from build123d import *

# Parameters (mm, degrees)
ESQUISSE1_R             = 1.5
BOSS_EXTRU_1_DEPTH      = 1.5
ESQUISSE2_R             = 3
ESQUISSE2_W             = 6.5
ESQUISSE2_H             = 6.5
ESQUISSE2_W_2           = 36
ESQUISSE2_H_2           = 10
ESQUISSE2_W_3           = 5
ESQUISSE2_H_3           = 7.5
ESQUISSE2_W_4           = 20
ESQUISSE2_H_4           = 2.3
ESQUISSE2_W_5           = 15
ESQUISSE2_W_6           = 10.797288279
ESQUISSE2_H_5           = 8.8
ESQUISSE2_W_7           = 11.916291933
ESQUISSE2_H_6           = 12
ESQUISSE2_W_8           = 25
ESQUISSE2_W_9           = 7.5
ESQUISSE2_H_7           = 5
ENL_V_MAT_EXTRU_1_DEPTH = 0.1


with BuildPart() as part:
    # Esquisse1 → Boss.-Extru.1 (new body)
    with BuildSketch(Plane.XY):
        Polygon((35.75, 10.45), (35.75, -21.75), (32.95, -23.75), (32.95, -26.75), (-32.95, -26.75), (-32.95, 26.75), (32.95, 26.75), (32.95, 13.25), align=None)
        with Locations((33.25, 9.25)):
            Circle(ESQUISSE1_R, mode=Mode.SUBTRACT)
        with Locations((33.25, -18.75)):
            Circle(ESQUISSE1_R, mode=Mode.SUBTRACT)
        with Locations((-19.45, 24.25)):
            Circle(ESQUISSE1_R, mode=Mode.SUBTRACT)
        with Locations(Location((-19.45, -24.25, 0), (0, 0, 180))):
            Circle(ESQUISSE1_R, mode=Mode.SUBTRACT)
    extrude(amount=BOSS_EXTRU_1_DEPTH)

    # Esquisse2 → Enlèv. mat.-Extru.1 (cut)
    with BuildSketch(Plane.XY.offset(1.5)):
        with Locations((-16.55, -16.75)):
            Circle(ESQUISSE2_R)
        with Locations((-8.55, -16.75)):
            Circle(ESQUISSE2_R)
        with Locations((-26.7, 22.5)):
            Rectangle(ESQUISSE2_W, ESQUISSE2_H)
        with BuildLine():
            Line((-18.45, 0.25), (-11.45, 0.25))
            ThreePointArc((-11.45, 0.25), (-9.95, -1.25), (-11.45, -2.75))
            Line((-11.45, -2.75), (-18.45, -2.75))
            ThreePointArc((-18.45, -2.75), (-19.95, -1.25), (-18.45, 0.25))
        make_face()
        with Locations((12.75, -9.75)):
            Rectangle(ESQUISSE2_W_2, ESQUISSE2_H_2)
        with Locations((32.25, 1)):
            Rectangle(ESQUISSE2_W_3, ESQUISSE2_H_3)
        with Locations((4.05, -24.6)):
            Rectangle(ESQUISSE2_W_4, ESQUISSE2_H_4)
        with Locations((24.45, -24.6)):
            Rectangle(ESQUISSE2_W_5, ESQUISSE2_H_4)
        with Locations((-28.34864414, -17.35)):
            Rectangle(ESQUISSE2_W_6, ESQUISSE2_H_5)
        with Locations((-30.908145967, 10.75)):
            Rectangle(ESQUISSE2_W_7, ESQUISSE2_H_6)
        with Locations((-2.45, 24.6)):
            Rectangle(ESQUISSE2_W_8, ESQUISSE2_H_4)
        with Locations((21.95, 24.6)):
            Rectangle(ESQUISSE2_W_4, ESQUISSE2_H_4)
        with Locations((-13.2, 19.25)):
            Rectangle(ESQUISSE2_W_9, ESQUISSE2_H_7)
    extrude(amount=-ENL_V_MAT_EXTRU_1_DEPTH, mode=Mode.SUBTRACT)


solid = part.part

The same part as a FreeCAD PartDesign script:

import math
import FreeCAD as App
import Part
import Sketcher
from FreeCAD import Vector
Q = App.Units.Quantity


def add_polygon(sketch, points):
    """Adds a closed chain of lines whose ends are joined by coincident constraints."""
    first, n = sketch.GeometryCount, len(points)
    for a, b in zip(points, points[1:] + points[:1]):
        sketch.addGeometry(Part.LineSegment(App.Vector(*a, 0), App.Vector(*b, 0)), False)
    for i in range(n):
        sketch.addConstraint(Sketcher.Constraint("Coincident", first + i, 2, first + (i + 1) % n, 1))

doc = App.newDocument("Part")
body = doc.addObject("PartDesign::Body", "Body")

# Sketch on XY plane
sketch1 = body.newObject("Sketcher::SketchObject", "Sketch")
sketch1.AttachmentSupport = (doc.getObject("XY_Plane"), [""])
sketch1.MapMode = "FlatFace"
add_polygon(sketch1, [(35.75, -21.75), (35.75, 10.45), (32.95, 13.25), (32.95, 26.75), (-32.95, 26.75), (-32.95, -26.75), (32.95, -26.75), (32.95, -23.75)])  # lines 0-7
sketch1.addGeometry(Part.Circle(Vector(33.25, -18.75, 0), Vector(0, 0, 1), 1.5), False)  # 8
sketch1.addGeometry(Part.Circle(Vector(-19.45, -24.25, 0), Vector(0, 0, 1), 1.5), False)  # 9
sketch1.addGeometry(Part.Circle(Vector(33.25, 9.25, 0), Vector(0, 0, 1), 1.5), False)  # 10
sketch1.addGeometry(Part.Circle(Vector(-19.45, 24.25, 0), Vector(0, 0, 1), 1.5), False)  # 11
sketch1.addConstraint(Sketcher.Constraint("Vertical", 0))
sketch1.addConstraint(Sketcher.Constraint("Vertical", 2))
sketch1.addConstraint(Sketcher.Constraint("Horizontal", 3))
sketch1.addConstraint(Sketcher.Constraint("Vertical", 4))
sketch1.addConstraint(Sketcher.Constraint("Horizontal", 5))
sketch1.addConstraint(Sketcher.Constraint("Vertical", 6))
sketch1.addConstraint(Sketcher.Constraint("Equal", 8, 9))
sketch1.addConstraint(Sketcher.Constraint("Equal", 9, 10))
sketch1.addConstraint(Sketcher.Constraint("Equal", 10, 11))
sketch1.addConstraint(Sketcher.Constraint("Symmetric", 2, 2, 4, 2, -1, 1))
sketch1.addConstraint(Sketcher.Constraint("Symmetric", 9, 3, 11, 3, -1))
sketch1.addConstraint(Sketcher.Constraint("Vertical", 8, 3, 10, 3))
sketch1.addConstraint(Sketcher.Constraint("Vertical", 2, 2, 5, 2))
sketch1.addConstraint(Sketcher.Constraint("Diameter", 8, Q("3 mm")))
sketch1.addConstraint(Sketcher.Constraint("DistanceY", 6, 1, 6, 2, Q("3 mm")))
sketch1.addConstraint(Sketcher.Constraint("Angle", 1, Q("135 deg")))
sketch1.addConstraint(Sketcher.Constraint("DistanceX", 3, 2, 3, 1, Q("65.9 mm")))
sketch1.addConstraint(Sketcher.Constraint("DistanceY", 0, 1, 0, 2, Q("32.2 mm")))
sketch1.addConstraint(Sketcher.Constraint("DistanceY", 2, 1, 2, 2, Q("13.5 mm")))
sketch1.addConstraint(Sketcher.Constraint("DistanceY", 4, 2, 4, 1, Q("53.5 mm")))
sketch1.addConstraint(Sketcher.Constraint("DistanceY", 8, 3, 10, 3, Q("28 mm")))
sketch1.addConstraint(Sketcher.Constraint("DistanceY", 10, 3, 11, 3, Q("15 mm")))
sketch1.addConstraint(Sketcher.Constraint("DistanceY", 10, 3, 1, 2, Q("4 mm")))
sketch1.addConstraint(Sketcher.Constraint("DistanceY", 6, 2, 7, 2, Q("2 mm")))
sketch1.addConstraint(Sketcher.Constraint("DistanceX", 9, 3, 8, 3, Q("52.7 mm")))
sketch1.addConstraint(Sketcher.Constraint("DistanceX", 10, 3, 0, 2, Q("2.5 mm")))
pad1 = body.newObject("PartDesign::Pad", "Pad")
pad1.Profile = sketch1
pad1.Length = 1.5

# Sketch on XY plane
sketch2 = body.newObject("Sketcher::SketchObject", "Sketch001")
sketch2.AttachmentSupport = (doc.getObject("XY_Plane"), [""])
sketch2.MapMode = "FlatFace"
sketch2.AttachmentOffset = App.Placement(Vector(0, 0, 1.5), App.Rotation())
sketch2.addGeometry(Part.Circle(Vector(-16.55, -16.75, 0), Vector(0, 0, 1), 3), False)  # 0
sketch2.addGeometry(Part.Circle(Vector(-8.55, -16.75, 0), Vector(0, 0, 1), 3), False)  # 1
add_polygon(sketch2, [(-29.95, 25.75), (-29.95, 19.25), (-23.45, 19.25), (-23.45, 25.75)])  # lines 2-5
sketch2.addGeometry(Part.LineSegment(Vector(-11.45, 0.25, 0), Vector(-18.45, 0.25, 0)), False)  # 6
sketch2.addGeometry(Part.ArcOfCircle(Part.Circle(Vector(-18.45, -1.25, 0), Vector(0, 0, 1), 1.5), math.radians(90), math.radians(270)), False)  # 7
sketch2.addGeometry(Part.LineSegment(Vector(-18.45, -2.75, 0), Vector(-11.45, -2.75, 0)), False)  # 8
sketch2.addGeometry(Part.ArcOfCircle(Part.Circle(Vector(-11.45, -1.25, 0), Vector(0, 0, 1), 1.5), math.radians(-90), math.radians(90)), False)  # 9
add_polygon(sketch2, [(-5.25, -4.75), (-5.25, -14.75), (30.75, -14.75), (30.75, -4.75)])  # lines 10-13
add_polygon(sketch2, [(29.75, 4.75), (29.75, -2.75), (34.75, -2.75), (34.75, 4.75)])  # lines 14-17
add_polygon(sketch2, [(-5.95, -23.45), (-5.95, -25.75), (14.05, -25.75), (14.05, -23.45)])  # lines 18-21
add_polygon(sketch2, [(16.95, -23.45), (16.95, -25.75), (31.95, -25.75), (31.95, -23.45)])  # lines 22-25
add_polygon(sketch2, [(-33.747288, -12.95), (-33.747288, -21.75), (-22.95, -21.75), (-22.95, -12.95)])  # lines 26-29
add_polygon(sketch2, [(-36.866292, 16.75), (-36.866292, 4.75), (-24.95, 4.75), (-24.95, 16.75)])  # lines 30-33
add_polygon(sketch2, [(-14.95, 25.75), (-14.95, 23.45), (10.05, 23.45), (10.05, 25.75)])  # lines 34-37
add_polygon(sketch2, [(11.95, 25.75), (11.95, 23.45), (31.95, 23.45), (31.95, 25.75)])  # lines 38-41
add_polygon(sketch2, [(-16.95, 21.75), (-16.95, 16.75), (-9.45, 16.75), (-9.45, 21.75)])  # lines 42-45
sketch2.addConstraint(Sketcher.Constraint("Tangent", 6, 2, 7, 1))
sketch2.addConstraint(Sketcher.Constraint("Tangent", 7, 2, 8, 1))
sketch2.addConstraint(Sketcher.Constraint("Tangent", 8, 2, 9, 1))
sketch2.addConstraint(Sketcher.Constraint("Tangent", 9, 2, 6, 1))
sketch2.addConstraint(Sketcher.Constraint("Vertical", 2))
sketch2.addConstraint(Sketcher.Constraint("Horizontal", 3))
sketch2.addConstraint(Sketcher.Constraint("Vertical", 4))
sketch2.addConstraint(Sketcher.Constraint("Horizontal", 5))
sketch2.addConstraint(Sketcher.Constraint("Horizontal", 6))
sketch2.addConstraint(Sketcher.Constraint("Horizontal", 8))
sketch2.addConstraint(Sketcher.Constraint("Vertical", 10))
sketch2.addConstraint(Sketcher.Constraint("Horizontal", 11))
sketch2.addConstraint(Sketcher.Constraint("Vertical", 12))
sketch2.addConstraint(Sketcher.Constraint("Horizontal", 13))
sketch2.addConstraint(Sketcher.Constraint("Vertical", 14))
sketch2.addConstraint(Sketcher.Constraint("Horizontal", 15))
sketch2.addConstraint(Sketcher.Constraint("Vertical", 16))
sketch2.addConstraint(Sketcher.Constraint("Horizontal", 17))
sketch2.addConstraint(Sketcher.Constraint("Vertical", 18))
sketch2.addConstraint(Sketcher.Constraint("Horizontal", 19))
sketch2.addConstraint(Sketcher.Constraint("Vertical", 20))
sketch2.addConstraint(Sketcher.Constraint("Horizontal", 21))
sketch2.addConstraint(Sketcher.Constraint("Vertical", 22))
sketch2.addConstraint(Sketcher.Constraint("Horizontal", 23))
sketch2.addConstraint(Sketcher.Constraint("Vertical", 24))
sketch2.addConstraint(Sketcher.Constraint("Horizontal", 25))
sketch2.addConstraint(Sketcher.Constraint("Vertical", 26))
sketch2.addConstraint(Sketcher.Constraint("Horizontal", 27))
sketch2.addConstraint(Sketcher.Constraint("Vertical", 28))
sketch2.addConstraint(Sketcher.Constraint("Horizontal", 29))
sketch2.addConstraint(Sketcher.Constraint("Vertical", 30))
sketch2.addConstraint(Sketcher.Constraint("Horizontal", 31))
sketch2.addConstraint(Sketcher.Constraint("Vertical", 32))
sketch2.addConstraint(Sketcher.Constraint("Horizontal", 33))
sketch2.addConstraint(Sketcher.Constraint("Vertical", 34))
sketch2.addConstraint(Sketcher.Constraint("Horizontal", 35))
sketch2.addConstraint(Sketcher.Constraint("Vertical", 36))
sketch2.addConstraint(Sketcher.Constraint("Horizontal", 37))
sketch2.addConstraint(Sketcher.Constraint("Vertical", 38))
sketch2.addConstraint(Sketcher.Constraint("Horizontal", 39))
sketch2.addConstraint(Sketcher.Constraint("Vertical", 40))
sketch2.addConstraint(Sketcher.Constraint("Horizontal", 41))
sketch2.addConstraint(Sketcher.Constraint("Vertical", 42))
sketch2.addConstraint(Sketcher.Constraint("Horizontal", 43))
sketch2.addConstraint(Sketcher.Constraint("Vertical", 44))
sketch2.addConstraint(Sketcher.Constraint("Horizontal", 45))
sketch2.addConstraint(Sketcher.Constraint("Equal", 0, 1))
sketch2.addConstraint(Sketcher.Constraint("Symmetric", 24, 2, 39, 2, -1))
sketch2.addConstraint(Sketcher.Constraint("Horizontal", 0, 3, 1, 3))
sketch2.addConstraint(Sketcher.Constraint("Horizontal", 8, 2, 14, 2))
sketch2.addConstraint(Sketcher.Constraint("Horizontal", 19, 2, 22, 2))
sketch2.addConstraint(Sketcher.Constraint("Horizontal", 21, 2, 24, 2))
sketch2.addConstraint(Sketcher.Constraint("Horizontal", 17, 2, 30, 2))
sketch2.addConstraint(Sketcher.Constraint("Horizontal", 5, 2, 36, 2))
sketch2.addConstraint(Sketcher.Constraint("Horizontal", 35, 2, 38, 2))
sketch2.addConstraint(Sketcher.Constraint("Horizontal", 37, 2, 40, 2))
sketch2.addConstraint(Sketcher.Constraint("Horizontal", 33, 2, 42, 2))
sketch2.addConstraint(Sketcher.Constraint("Equal", 21, 39))
sketch2.addConstraint(Sketcher.Constraint("Equal", 5, 2))
sketch2.addConstraint(Sketcher.Constraint("Equal", 45, 14))
sketch2.addConstraint(Sketcher.Constraint("Equal", 24, 34))
sketch2.addConstraint(Sketcher.Constraint("Equal", 17, 42))
sketch2.addConstraint(Sketcher.Constraint("Diameter", 0, Q("6 mm")))
sketch2.addConstraint(Sketcher.Constraint("Radius", 7, Q("1.5 mm")))
sketch2.addConstraint(Sketcher.Constraint("DistanceX", 6, 2, 6, 1, Q("7 mm")))
sketch2.addConstraint(Sketcher.Constraint("DistanceX", 11, 1, 11, 2, Q("36 mm")))
sketch2.addConstraint(Sketcher.Constraint("DistanceX", 15, 1, 15, 2, Q("5 mm")))
sketch2.addConstraint(Sketcher.Constraint("DistanceX", 19, 1, 19, 2, Q("20 mm")))
sketch2.addConstraint(Sketcher.Constraint("DistanceX", 23, 1, 23, 2, Q("15 mm")))
sketch2.addConstraint(Sketcher.Constraint("DistanceX", 35, 1, 35, 2, Q("25 mm")))
sketch2.addConstraint(Sketcher.Constraint("DistanceY", 10, 2, 10, 1, Q("10 mm")))
sketch2.addConstraint(Sketcher.Constraint("DistanceY", 30, 2, 30, 1, Q("12 mm")))
sketch2.addConstraint(Sketcher.Constraint("DistanceX", 3, 1, 3, 2, Q("6.5 mm")))
sketch2.addConstraint(Sketcher.Constraint("DistanceX", 43, 1, 43, 2, Q("7.5 mm")))
sketch2.addConstraint(Sketcher.Constraint("DistanceY", 18, 2, 18, 1, Q("2.3 mm")))
sketch2.addConstraint(Sketcher.Constraint("DistanceY", 26, 2, 26, 1, Q("8.8 mm")))
sketch2.addConstraint(Sketcher.Constraint("DistanceX", 0, 3, 1, 3, Q("8 mm")))
sketch2.addConstraint(Sketcher.Constraint("DistanceY", 0, 3, 2, 2, Q("36 mm")))
sketch2.addConstraint(Sketcher.Constraint("DistanceX", 3, 2, 7, 3, Q("5 mm")))
sketch2.addConstraint(Sketcher.Constraint("DistanceY", 7, 3, 4, 2, Q("27 mm")))
sketch2.addConstraint(Sketcher.Constraint("DistanceY", 1, 3, 10, 2, Q("2 mm")))
sketch2.addConstraint(Sketcher.Constraint("DistanceX", 14, 2, 12, 2, Q("1 mm")))
sketch2.addConstraint(Sketcher.Constraint("DistanceY", 18, 2, 1, 3, Q("9 mm")))
sketch2.addConstraint(Sketcher.Constraint("DistanceY", 26, 2, 0, 3, Q("5 mm")))
sketch2.addConstraint(Sketcher.Constraint("DistanceX", 27, 2, 21, 2, Q("17 mm")))
sketch2.addConstraint(Sketcher.Constraint("DistanceX", 2, 2, 32, 2, Q("5 mm")))
sketch2.addConstraint(Sketcher.Constraint("DistanceX", 32, 2, 34, 2, Q("10 mm")))
sketch2.addConstraint(Sketcher.Constraint("DistanceX", 42, 2, 34, 2, Q("2 mm")))
sketch2.addConstraint(Sketcher.Constraint("DistanceX", 7, 3, 0, 3, Q("1.9 mm")))
sketch2.addConstraint(Sketcher.Constraint("DistanceX", 1, 3, 10, 2, Q("3.3 mm")))
sketch2.addConstraint(Sketcher.Constraint("DistanceX", 1, 3, 18, 2, Q("2.6 mm")))
sketch2.addConstraint(Sketcher.Constraint("DistanceX", 19, 2, 22, 2, Q("2.9 mm")))
sketch2.addConstraint(Sketcher.Constraint("DistanceX", 0, 3, -1, 1, Q("16.55 mm")))
sketch2.addConstraint(Sketcher.Constraint("DistanceX", 27, 1, 27, 2, Q("10.797288 mm")))
sketch2.addConstraint(Sketcher.Constraint("DistanceX", 31, 1, 31, 2, Q("11.916292 mm")))
pocket1 = body.newObject("PartDesign::Pocket", "Pocket")
pocket1.Profile = sketch2
pocket1.Length = 0.1

doc.recompute()
